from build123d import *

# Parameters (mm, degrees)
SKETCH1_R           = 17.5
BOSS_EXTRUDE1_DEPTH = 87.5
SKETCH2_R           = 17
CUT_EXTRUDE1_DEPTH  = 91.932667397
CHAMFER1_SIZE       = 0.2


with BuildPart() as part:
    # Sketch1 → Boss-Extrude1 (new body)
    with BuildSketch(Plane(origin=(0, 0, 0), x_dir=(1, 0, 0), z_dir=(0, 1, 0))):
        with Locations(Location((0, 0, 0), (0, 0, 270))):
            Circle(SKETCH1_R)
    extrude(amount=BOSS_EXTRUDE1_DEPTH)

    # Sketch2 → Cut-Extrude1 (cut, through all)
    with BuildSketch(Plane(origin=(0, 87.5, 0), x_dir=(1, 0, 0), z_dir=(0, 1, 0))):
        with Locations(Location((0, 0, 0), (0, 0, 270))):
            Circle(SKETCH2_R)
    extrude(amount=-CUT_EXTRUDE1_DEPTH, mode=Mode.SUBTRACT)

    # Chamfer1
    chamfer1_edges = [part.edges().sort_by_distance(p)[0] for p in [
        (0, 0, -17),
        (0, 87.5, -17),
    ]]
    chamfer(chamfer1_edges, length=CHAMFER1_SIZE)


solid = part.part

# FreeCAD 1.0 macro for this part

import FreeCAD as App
import Part
import Sketcher

V = App.Vector


def edges_at(feature, points):
    """Names of the edges that pass closest to the given points."""
    edges = feature.Shape.Edges
    near = lambda p: min(range(len(edges)), key=lambda i: edges[i].distToShape(Part.Vertex(*p))[0])
    return sorted({f"Edge{near(p) + 1}" for p in points})

doc = App.newDocument("Part")
body = doc.addObject("PartDesign::Body", "Body")

# Sketch on XZ plane
sketch1 = body.newObject("Sketcher::SketchObject", "Sketch")
sketch1.AttachmentSupport = (doc.getObject("XZ_Plane"), [""])
sketch1.MapMode = "FlatFace"
sketch1.addGeometry(Part.Circle(V(0, 0, 0), V(0, 0, 1), 18), False)
sketch1.addConstraint([
    Sketcher.Constraint("Coincident", 0, 3, -1, 1),
    Sketcher.Constraint("Diameter", 0, 35.0),
])
pad1 = body.newObject("PartDesign::Pad", "Pad")
pad1.Profile = sketch1
pad1.Length = 87.5
pad1.Reversed = True

# Sketch on XZ plane
sketch2 = body.newObject("Sketcher::SketchObject", "Sketch001")
sketch2.AttachmentSupport = (doc.getObject("XZ_Plane"), [""])
sketch2.MapMode = "FlatFace"
sketch2.AttachmentOffset = App.Placement(V(0, 0, -87.5), App.Rotation())
sketch2.addGeometry(Part.Circle(V(0, 0, 0), V(0, 0, 1), 17), False)
sketch2.addConstraint([
    Sketcher.Constraint("Coincident", 0, 3, -1, 1),
    Sketcher.Constraint("Diameter", 0, 34.0),
])
pocket1 = body.newObject("PartDesign::Pocket", "Pocket")
pocket1.Profile = sketch2
pocket1.Type = "ThroughAll"
pocket1.Reversed = True
doc.recompute()

chamfer = body.newObject("PartDesign::Chamfer", "Chamfer")
chamfer.Base = (pocket1, edges_at(pocket1, [(0, 0, -17), (0, 87.5, -17)]))
chamfer.Size = 0.2

doc.recompute()
